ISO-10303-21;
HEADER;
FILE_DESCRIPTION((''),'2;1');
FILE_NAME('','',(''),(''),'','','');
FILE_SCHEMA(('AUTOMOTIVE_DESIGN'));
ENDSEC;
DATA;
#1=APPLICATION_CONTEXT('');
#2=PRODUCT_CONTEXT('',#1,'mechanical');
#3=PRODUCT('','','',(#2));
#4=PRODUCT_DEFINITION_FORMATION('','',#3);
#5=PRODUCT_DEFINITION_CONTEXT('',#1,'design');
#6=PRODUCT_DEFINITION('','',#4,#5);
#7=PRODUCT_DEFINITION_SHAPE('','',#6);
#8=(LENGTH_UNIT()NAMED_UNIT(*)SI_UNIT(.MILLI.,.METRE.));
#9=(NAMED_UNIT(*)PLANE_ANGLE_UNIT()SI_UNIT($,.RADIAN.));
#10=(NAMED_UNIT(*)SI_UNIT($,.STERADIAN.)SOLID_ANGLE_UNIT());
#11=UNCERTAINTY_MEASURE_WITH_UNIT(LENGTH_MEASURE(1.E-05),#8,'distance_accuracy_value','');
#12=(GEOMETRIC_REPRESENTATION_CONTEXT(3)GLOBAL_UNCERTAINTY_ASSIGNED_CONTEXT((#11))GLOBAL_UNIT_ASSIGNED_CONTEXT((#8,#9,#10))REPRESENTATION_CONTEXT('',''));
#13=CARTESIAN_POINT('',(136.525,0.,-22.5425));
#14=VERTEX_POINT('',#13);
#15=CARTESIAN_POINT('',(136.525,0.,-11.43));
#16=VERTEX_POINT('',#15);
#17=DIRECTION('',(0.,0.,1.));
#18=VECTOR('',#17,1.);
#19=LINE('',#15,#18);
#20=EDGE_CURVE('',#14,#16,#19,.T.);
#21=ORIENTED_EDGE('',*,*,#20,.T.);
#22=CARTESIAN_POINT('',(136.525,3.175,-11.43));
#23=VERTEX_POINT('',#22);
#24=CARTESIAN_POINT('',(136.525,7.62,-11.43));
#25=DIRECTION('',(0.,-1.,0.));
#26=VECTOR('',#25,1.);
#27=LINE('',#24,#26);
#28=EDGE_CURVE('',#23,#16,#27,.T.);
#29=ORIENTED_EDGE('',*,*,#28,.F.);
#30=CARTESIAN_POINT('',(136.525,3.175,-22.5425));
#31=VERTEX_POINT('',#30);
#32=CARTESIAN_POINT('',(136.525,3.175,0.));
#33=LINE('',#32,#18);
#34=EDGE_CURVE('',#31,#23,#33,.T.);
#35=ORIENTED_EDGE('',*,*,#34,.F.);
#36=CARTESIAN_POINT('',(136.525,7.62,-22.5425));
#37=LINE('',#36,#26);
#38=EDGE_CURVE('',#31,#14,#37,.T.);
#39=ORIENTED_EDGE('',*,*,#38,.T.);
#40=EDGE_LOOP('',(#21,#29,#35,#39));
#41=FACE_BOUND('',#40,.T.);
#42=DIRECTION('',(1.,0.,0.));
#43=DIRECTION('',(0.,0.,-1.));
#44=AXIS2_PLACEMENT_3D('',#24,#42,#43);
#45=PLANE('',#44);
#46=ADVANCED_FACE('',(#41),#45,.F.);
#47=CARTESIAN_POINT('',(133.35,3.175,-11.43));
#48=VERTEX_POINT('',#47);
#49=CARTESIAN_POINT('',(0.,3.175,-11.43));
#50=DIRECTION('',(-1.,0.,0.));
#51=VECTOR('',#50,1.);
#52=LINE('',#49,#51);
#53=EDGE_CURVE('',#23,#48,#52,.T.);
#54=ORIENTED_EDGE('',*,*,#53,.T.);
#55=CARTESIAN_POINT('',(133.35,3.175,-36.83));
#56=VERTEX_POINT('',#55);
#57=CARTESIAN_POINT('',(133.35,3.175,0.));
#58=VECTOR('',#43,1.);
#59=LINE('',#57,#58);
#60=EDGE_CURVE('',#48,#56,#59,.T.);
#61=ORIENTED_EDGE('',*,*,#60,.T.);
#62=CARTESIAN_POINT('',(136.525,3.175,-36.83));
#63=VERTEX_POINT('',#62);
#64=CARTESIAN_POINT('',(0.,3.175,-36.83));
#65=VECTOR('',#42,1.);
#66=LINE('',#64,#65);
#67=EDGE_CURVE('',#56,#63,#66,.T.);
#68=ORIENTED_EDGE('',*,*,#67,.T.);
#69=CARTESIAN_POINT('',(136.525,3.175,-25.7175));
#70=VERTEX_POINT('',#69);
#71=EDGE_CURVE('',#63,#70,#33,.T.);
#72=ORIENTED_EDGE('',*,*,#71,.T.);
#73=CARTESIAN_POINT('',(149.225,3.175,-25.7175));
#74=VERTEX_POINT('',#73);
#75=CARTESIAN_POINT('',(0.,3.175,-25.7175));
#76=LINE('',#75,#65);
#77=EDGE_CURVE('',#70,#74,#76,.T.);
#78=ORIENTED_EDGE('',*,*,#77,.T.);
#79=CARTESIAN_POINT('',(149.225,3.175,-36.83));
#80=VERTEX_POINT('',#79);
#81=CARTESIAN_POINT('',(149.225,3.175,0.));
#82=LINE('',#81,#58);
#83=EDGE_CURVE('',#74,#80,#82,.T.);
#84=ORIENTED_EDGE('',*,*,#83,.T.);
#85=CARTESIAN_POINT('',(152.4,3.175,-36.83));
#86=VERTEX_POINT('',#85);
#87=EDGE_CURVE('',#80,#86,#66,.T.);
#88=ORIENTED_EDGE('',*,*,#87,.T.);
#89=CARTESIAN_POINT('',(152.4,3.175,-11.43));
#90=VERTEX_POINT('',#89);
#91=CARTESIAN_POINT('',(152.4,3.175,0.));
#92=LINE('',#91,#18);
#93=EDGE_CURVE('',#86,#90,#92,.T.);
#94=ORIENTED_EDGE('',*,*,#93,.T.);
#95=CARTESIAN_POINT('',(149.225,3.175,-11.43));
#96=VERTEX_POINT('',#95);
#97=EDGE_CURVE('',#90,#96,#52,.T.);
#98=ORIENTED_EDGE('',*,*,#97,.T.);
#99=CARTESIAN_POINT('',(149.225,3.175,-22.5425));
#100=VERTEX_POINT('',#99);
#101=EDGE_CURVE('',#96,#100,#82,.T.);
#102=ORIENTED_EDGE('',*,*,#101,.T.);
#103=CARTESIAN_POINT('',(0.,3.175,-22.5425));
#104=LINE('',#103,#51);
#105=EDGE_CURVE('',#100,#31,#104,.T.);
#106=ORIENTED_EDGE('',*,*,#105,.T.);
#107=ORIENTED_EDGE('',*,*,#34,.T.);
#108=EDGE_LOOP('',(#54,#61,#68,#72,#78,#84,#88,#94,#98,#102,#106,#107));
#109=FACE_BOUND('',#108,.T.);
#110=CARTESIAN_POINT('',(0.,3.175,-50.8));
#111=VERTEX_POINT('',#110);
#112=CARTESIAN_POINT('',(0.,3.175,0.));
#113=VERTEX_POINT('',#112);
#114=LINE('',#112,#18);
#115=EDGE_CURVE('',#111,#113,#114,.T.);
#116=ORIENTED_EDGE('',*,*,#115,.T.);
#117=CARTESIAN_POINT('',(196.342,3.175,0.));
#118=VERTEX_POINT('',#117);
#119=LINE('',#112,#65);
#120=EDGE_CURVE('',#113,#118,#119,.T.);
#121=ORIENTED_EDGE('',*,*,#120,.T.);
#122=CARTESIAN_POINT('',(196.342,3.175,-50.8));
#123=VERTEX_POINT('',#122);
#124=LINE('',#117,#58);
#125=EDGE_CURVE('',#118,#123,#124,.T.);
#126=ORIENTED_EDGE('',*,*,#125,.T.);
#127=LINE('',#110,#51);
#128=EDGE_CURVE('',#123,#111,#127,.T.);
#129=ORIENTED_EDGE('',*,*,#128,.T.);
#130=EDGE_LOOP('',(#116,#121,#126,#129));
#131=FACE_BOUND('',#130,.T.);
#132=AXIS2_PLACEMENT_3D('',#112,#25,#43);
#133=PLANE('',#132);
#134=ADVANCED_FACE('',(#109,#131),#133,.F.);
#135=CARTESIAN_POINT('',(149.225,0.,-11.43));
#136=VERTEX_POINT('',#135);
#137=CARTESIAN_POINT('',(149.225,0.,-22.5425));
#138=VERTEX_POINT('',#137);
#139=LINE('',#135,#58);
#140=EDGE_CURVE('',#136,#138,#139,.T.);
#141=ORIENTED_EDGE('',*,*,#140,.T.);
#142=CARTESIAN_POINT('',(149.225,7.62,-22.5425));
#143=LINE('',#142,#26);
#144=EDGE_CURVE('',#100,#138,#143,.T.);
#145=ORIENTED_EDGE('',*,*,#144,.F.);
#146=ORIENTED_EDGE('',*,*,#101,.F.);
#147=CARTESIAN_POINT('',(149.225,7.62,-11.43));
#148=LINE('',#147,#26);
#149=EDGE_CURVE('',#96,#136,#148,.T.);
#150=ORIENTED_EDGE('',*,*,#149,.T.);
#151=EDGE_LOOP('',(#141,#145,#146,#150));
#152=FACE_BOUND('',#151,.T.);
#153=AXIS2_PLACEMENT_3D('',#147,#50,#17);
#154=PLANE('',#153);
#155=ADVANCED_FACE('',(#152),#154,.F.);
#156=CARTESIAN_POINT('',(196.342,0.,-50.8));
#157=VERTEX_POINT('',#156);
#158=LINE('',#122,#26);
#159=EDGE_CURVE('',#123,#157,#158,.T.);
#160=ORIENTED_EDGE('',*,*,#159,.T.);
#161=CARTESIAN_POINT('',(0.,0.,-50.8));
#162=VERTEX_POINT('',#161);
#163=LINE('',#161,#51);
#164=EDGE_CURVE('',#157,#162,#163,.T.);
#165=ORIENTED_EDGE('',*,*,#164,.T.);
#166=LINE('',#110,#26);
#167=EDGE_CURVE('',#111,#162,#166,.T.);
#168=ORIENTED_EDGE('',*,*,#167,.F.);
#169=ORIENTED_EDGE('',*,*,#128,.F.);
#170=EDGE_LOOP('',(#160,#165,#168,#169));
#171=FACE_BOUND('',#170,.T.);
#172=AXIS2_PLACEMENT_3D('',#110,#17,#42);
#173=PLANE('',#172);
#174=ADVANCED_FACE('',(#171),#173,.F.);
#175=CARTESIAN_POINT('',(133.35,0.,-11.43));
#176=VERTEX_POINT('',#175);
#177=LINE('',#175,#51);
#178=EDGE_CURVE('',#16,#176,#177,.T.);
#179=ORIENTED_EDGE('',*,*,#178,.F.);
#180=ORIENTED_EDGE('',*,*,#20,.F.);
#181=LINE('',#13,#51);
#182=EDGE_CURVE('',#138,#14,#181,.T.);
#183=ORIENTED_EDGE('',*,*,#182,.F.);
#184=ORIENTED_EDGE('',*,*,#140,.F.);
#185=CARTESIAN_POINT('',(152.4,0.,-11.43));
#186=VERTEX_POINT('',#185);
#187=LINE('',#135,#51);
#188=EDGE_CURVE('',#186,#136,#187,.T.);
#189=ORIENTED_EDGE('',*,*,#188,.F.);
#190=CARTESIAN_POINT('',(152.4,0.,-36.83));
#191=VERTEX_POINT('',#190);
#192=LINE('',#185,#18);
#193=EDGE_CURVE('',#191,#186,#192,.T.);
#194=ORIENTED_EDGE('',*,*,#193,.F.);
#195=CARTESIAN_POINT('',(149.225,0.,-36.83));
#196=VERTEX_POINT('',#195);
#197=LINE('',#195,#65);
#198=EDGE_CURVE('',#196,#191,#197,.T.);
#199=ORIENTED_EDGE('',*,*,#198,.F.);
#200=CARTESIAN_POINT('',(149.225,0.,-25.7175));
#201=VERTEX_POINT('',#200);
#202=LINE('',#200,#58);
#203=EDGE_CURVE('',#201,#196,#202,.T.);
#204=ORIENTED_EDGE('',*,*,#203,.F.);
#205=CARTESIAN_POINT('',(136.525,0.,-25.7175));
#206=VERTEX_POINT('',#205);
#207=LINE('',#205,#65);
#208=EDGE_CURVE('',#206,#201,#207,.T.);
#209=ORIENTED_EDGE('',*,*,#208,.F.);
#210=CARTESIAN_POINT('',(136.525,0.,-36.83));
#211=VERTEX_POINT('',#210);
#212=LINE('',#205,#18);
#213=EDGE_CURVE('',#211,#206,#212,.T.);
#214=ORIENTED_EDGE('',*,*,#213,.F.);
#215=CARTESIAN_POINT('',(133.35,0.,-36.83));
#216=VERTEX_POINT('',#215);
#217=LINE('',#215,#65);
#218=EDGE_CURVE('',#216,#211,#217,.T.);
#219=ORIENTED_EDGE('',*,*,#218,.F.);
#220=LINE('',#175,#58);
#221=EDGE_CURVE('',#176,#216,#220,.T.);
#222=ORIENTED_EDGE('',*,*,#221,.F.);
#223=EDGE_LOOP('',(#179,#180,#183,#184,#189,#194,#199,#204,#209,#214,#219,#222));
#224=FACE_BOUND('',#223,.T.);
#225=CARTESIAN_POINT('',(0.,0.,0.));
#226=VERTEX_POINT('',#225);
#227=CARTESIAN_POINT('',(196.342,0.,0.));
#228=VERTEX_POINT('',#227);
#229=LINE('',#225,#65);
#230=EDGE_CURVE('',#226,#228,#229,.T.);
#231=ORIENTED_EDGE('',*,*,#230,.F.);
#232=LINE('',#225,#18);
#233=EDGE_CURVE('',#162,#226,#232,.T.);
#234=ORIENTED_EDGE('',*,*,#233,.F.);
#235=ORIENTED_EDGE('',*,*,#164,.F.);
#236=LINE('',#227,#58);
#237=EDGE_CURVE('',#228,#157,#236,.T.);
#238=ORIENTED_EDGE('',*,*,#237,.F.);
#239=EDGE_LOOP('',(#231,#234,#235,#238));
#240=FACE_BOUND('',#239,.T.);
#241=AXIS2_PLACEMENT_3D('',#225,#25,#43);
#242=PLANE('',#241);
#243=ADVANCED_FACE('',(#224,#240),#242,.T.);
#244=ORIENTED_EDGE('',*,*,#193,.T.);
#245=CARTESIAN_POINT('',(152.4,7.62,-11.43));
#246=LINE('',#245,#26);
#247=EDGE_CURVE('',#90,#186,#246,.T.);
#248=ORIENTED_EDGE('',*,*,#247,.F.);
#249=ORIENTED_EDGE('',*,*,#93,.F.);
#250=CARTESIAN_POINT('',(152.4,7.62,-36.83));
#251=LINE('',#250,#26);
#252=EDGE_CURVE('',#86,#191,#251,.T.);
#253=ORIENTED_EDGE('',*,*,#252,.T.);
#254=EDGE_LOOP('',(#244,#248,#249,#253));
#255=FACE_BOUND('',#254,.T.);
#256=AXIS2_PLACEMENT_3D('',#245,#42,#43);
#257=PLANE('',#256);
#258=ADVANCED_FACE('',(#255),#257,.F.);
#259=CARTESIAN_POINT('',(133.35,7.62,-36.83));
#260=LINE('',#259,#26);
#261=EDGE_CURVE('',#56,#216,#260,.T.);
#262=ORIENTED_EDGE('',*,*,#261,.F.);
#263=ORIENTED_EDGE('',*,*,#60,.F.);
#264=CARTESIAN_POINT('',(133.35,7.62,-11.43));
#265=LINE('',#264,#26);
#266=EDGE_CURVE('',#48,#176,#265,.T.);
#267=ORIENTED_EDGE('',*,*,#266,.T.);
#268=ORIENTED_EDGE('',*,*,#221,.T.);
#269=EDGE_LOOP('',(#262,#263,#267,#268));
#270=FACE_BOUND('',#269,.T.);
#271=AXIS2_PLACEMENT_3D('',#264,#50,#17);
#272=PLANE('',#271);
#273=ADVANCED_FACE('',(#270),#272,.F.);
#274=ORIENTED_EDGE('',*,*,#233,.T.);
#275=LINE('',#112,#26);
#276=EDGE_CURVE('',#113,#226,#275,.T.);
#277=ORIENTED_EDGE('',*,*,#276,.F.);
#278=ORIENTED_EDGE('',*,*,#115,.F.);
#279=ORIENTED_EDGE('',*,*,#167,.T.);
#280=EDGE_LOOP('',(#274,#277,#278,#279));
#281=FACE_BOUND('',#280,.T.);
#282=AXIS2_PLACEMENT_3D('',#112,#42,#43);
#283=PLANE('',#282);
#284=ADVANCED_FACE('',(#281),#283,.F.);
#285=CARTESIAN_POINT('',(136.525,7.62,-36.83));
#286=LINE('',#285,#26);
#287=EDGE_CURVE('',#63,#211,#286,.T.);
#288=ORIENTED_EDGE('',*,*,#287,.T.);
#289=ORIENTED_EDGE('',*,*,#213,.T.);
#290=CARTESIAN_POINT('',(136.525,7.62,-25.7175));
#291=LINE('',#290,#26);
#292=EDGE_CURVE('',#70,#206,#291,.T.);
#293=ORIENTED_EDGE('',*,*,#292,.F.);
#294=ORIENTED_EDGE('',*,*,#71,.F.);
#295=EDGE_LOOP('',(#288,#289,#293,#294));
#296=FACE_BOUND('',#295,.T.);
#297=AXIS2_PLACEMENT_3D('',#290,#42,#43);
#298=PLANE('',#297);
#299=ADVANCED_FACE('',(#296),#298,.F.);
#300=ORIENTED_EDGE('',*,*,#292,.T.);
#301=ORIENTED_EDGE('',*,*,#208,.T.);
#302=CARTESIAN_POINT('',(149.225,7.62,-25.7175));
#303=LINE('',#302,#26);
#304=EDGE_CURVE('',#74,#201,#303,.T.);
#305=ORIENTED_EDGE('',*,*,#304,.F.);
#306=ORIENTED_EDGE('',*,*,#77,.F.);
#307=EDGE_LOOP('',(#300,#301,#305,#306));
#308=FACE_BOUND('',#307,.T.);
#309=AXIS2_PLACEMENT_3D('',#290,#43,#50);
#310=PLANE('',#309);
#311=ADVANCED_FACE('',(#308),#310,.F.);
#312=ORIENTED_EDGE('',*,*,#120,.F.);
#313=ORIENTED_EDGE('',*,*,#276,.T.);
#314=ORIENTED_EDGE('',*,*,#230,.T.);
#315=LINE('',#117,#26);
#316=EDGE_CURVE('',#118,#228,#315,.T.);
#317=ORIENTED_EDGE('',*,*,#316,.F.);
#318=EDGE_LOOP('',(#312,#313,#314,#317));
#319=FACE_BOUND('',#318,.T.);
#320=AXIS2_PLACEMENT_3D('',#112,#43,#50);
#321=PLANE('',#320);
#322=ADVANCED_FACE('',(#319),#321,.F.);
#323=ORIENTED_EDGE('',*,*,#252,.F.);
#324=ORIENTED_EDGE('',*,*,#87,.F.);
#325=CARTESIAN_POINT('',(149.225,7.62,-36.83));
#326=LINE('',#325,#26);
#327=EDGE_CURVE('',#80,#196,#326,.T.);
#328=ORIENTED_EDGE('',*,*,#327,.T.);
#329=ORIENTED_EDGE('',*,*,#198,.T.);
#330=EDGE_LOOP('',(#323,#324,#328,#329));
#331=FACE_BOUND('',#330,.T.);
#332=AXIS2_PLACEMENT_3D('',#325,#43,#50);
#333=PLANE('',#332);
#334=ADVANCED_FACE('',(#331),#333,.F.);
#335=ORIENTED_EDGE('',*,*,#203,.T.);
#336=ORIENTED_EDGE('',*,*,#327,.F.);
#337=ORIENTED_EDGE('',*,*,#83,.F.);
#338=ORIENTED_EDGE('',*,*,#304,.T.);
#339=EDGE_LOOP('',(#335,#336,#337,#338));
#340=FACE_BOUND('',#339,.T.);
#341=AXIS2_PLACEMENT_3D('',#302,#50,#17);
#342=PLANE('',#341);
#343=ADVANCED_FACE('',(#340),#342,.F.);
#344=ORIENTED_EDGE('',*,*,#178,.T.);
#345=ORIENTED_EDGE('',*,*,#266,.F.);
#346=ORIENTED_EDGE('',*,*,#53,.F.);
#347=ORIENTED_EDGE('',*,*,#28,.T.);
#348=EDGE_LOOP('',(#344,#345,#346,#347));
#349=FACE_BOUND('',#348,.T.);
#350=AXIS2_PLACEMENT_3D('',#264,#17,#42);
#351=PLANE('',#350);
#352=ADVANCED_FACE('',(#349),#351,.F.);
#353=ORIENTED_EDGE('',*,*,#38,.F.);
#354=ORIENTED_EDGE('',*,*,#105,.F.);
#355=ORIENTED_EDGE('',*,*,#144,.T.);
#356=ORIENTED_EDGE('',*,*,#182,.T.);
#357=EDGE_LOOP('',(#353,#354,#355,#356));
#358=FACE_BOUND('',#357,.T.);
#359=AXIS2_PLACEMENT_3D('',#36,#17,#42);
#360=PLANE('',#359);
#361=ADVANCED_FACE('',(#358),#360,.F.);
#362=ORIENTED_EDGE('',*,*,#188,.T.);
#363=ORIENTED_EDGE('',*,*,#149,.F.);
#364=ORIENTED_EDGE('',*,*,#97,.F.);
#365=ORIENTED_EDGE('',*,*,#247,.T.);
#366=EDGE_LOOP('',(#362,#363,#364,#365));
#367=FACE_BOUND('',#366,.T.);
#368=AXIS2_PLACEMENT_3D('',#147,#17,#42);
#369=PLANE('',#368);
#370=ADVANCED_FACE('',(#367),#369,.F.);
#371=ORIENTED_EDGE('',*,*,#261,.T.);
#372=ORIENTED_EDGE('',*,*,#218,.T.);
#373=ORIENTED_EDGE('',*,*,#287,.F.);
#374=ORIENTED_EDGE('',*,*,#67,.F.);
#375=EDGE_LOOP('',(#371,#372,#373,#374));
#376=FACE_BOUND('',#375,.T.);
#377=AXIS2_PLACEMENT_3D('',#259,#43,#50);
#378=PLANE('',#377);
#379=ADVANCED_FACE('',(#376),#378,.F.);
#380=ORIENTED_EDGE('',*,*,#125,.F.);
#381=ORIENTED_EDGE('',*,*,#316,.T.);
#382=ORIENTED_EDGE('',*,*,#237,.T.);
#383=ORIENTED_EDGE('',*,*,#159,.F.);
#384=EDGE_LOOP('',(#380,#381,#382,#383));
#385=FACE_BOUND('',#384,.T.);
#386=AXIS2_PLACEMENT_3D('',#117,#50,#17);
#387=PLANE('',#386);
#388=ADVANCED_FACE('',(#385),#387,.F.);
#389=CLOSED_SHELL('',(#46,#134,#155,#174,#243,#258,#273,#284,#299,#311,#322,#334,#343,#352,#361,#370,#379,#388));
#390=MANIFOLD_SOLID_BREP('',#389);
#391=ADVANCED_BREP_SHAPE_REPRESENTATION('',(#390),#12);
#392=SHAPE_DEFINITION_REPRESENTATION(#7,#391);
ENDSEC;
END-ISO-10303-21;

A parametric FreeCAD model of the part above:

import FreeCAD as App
import Part
import Sketcher
from FreeCAD import Vector
Q = App.Units.Quantity

doc = App.newDocument("Part")
body = doc.addObject("PartDesign::Body", "Body")

# Sketch on XZ plane
sketch1 = body.newObject("Sketcher::SketchObject", "Sketch")
sketch1.AttachmentSupport = (doc.getObject("XZ_Plane"), [""])
sketch1.MapMode = "FlatFace"
sketch1.addGeometry(Part.LineSegment(Vector(0, -51, 0), Vector(0, 0, 0)), False)
sketch1.addGeometry(Part.LineSegment(Vector(0, 0, 0), Vector(196, 0, 0)), False)
sketch1.addGeometry(Part.LineSegment(Vector(196, 0, 0), Vector(196, -51, 0)), False)
sketch1.addGeometry(Part.LineSegment(Vector(196, -51, 0), Vector(0, -51, 0)), False)
sketch1.addConstraint(Sketcher.Constraint("Coincident", 0, 2, 1, 1))
sketch1.addConstraint(Sketcher.Constraint("Coincident", 1, 2, 2, 1))
sketch1.addConstraint(Sketcher.Constraint("Coincident", 2, 2, 3, 1))
sketch1.addConstraint(Sketcher.Constraint("Coincident", 3, 2, 0, 1))
sketch1.addConstraint(Sketcher.Constraint("Vertical", 0))
sketch1.addConstraint(Sketcher.Constraint("Horizontal", 1))
sketch1.addConstraint(Sketcher.Constraint("Vertical", 2))
sketch1.addConstraint(Sketcher.Constraint("Horizontal", 3))
sketch1.addConstraint(Sketcher.Constraint("Coincident", 0, 2, -1, 1))
sketch1.addConstraint(Sketcher.Constraint("DistanceY", 0, 1, 0, 2, Q("2 in")))
sketch1.addConstraint(Sketcher.Constraint("DistanceX", 1, 1, 1, 2, Q("7.73 in")))
pad1 = body.newObject("PartDesign::Pad", "Pad")
pad1.Profile = sketch1
pad1.Length = Q("0.125 in")
pad1.Reversed = True

# Sketch on XZ plane
sketch2 = body.newObject("Sketcher::SketchObject", "Sketch001")
sketch2.AttachmentSupport = (doc.getObject("XZ_Plane"), [""])
sketch2.MapMode = "FlatFace"
sketch2.addGeometry(Part.LineSegment(Vector(136.5, -36.8, 0), Vector(136.5, -25.7, 0)), False)
sketch2.addGeometry(Part.LineSegment(Vector(136.5, -25.7, 0), Vector(149.2, -25.7, 0)), False)
sketch2.addGeometry(Part.LineSegment(Vector(149.2, -25.7, 0), Vector(149.2, -36.8, 0)), False)
sketch2.addGeometry(Part.LineSegment(Vector(149.2, -36.8, 0), Vector(152.4, -36.8, 0)), False)
sketch2.addGeometry(Part.LineSegment(Vector(152.4, -36.8, 0), Vector(152.4, -11.4, 0)), False)
sketch2.addGeometry(Part.LineSegment(Vector(152.4, -11.4, 0), Vector(149.2, -11.4, 0)), False)
sketch2.addGeometry(Part.LineSegment(Vector(149.2, -11.4, 0), Vector(149.2, -22.5, 0)), False)
sketch2.addGeometry(Part.LineSegment(Vector(149.2, -22.5, 0), Vector(136.5, -22.5, 0)), False)
sketch2.addGeometry(Part.LineSegment(Vector(136.5, -22.5, 0), Vector(136.5, -11.4, 0)), False)
sketch2.addGeometry(Part.LineSegment(Vector(136.5, -11.4, 0), Vector(133.3, -11.4, 0)), False)
sketch2.addGeometry(Part.LineSegment(Vector(133.3, -11.4, 0), Vector(133.3, -36.8, 0)), False)
sketch2.addGeometry(Part.LineSegment(Vector(133.3, -36.8, 0), Vector(136.5, -36.8, 0)), False)
sketch2.addConstraint(Sketcher.Constraint("Coincident", 0, 2, 1, 1))
sketch2.addConstraint(Sketcher.Constraint("Coincident", 1, 2, 2, 1))
sketch2.addConstraint(Sketcher.Constraint("Coincident", 2, 2, 3, 1))
sketch2.addConstraint(Sketcher.Constraint("Coincident", 3, 2, 4, 1))
sketch2.addConstraint(Sketcher.Constraint("Coincident", 4, 2, 5, 1))
sketch2.addConstraint(Sketcher.Constraint("Coincident", 5, 2, 6, 1))
sketch2.addConstraint(Sketcher.Constraint("Coincident", 6, 2, 7, 1))
sketch2.addConstraint(Sketcher.Constraint("Coincident", 7, 2, 8, 1))
sketch2.addConstraint(Sketcher.Constraint("Coincident", 8, 2, 9, 1))
sketch2.addConstraint(Sketcher.Constraint("Coincident", 9, 2, 10, 1))
sketch2.addConstraint(Sketcher.Constraint("Coincident", 10, 2, 11, 1))
sketch2.addConstraint(Sketcher.Constraint("Coincident", 11, 2, 0, 1))
sketch2.addConstraint(Sketcher.Constraint("Vertical", 0))
sketch2.addConstraint(Sketcher.Constraint("Horizontal", 1))
sketch2.addConstraint(Sketcher.Constraint("Vertical", 2))
sketch2.addConstraint(Sketcher.Constraint("Horizontal", 3))
sketch2.addConstraint(Sketcher.Constraint("Vertical", 4))
sketch2.addConstraint(Sketcher.Constraint("Horizontal", 5))
sketch2.addConstraint(Sketcher.Constraint("Vertical", 6))
sketch2.addConstraint(Sketcher.Constraint("Horizontal", 7))
sketch2.addConstraint(Sketcher.Constraint("Vertical", 8))
sketch2.addConstraint(Sketcher.Constraint("Horizontal", 9))
sketch2.addConstraint(Sketcher.Constraint("Vertical", 10))
sketch2.addConstraint(Sketcher.Constraint("Horizontal", 11))
sketch2.addConstraint(Sketcher.Constraint("Horizontal", 5, 2, 8, 2))
sketch2.addConstraint(Sketcher.Constraint("Horizontal", 3, 2, 10, 2))
sketch2.addConstraint(Sketcher.Constraint("Vertical", 2, 2, 5, 2))
sketch2.addConstraint(Sketcher.Constraint("Vertical", 0, 2, 7, 2))
sketch2.addConstraint(Sketcher.Constraint("Equal", 5, 9))
sketch2.addConstraint(Sketcher.Constraint("Equal", 2, 6))
sketch2.addConstraint(Sketcher.Constraint("DistanceY", 4, 1, 4, 2, Q("1 in")))
sketch2.addConstraint(Sketcher.Constraint("DistanceX", 1, 1, 1, 2, Q("0.5 in")))
sketch2.addConstraint(Sketcher.Constraint("DistanceX", -1, 1, 3, 2, Q("6 in")))
sketch2.addConstraint(Sketcher.Constraint("DistanceX", 3, 1, 3, 2, Q("0.125 in")))
sketch2.addConstraint(Sketcher.Constraint("DistanceY", 0, 1, 0, 2, Q("0.4375 in")))
sketch2.addConstraint(Sketcher.Constraint("DistanceY", 2, 2, -1, 1, Q("1.45 in")))
pocket1 = body.newObject("PartDesign::Pocket", "Pocket")
pocket1.Profile = sketch2
pocket1.Length = Q("0.3 in")

doc.recompute()
